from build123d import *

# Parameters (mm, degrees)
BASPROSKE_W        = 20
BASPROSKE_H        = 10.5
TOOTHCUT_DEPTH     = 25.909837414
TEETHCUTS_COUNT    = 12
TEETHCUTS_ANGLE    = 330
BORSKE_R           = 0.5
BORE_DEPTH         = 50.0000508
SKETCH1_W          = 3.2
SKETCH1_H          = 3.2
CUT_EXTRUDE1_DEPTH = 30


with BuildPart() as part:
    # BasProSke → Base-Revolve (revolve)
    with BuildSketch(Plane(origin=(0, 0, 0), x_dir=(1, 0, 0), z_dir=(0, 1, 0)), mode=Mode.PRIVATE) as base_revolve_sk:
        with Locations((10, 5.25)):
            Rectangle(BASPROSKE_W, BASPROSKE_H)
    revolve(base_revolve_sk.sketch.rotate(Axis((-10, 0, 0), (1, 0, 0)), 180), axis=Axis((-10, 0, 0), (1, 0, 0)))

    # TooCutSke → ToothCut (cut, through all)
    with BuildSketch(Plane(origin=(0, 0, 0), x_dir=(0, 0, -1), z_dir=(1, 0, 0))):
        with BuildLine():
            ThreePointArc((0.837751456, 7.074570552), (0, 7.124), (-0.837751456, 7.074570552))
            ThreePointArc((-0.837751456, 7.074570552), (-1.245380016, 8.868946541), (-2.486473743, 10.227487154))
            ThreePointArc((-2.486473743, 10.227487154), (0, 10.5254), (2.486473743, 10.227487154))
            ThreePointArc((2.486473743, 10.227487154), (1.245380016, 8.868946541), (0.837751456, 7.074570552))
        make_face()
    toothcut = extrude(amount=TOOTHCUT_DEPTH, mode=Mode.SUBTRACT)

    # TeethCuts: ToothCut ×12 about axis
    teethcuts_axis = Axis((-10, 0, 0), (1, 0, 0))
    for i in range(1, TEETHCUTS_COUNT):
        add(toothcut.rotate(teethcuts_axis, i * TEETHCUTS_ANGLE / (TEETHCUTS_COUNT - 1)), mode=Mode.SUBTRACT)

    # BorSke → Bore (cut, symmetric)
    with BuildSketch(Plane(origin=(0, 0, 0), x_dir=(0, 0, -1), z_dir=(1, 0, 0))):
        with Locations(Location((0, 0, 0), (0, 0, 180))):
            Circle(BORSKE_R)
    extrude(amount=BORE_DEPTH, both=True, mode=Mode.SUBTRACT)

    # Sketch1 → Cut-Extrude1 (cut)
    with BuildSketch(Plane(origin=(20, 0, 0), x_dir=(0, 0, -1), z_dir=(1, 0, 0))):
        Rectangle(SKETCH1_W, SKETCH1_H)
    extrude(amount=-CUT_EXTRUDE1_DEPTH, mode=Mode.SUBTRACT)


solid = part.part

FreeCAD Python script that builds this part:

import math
import FreeCAD as App
import Part
import Sketcher
from FreeCAD import Vector
Q = App.Units.Quantity


def add_polygon(sketch, points):
    """Adds a closed chain of lines whose ends are joined by coincident constraints."""
    first, n = sketch.GeometryCount, len(points)
    for a, b in zip(points, points[1:] + points[:1]):
        sketch.addGeometry(Part.LineSegment(App.Vector(*a, 0), App.Vector(*b, 0)), False)
    for i in range(n):
        sketch.addConstraint(Sketcher.Constraint("Coincident", first + i, 2, first + (i + 1) % n, 1))

doc = App.newDocument("Part")
params = doc.addObject("Spreadsheet::Sheet", "Params")
for row, (alias, value) in enumerate([
    ("sketch1_width", "20 mm"),
    ("sketch1_height", "10.5 mm"),
    ("revolution_angle", "360 deg"),
    ("sketch2_radius", "3.6 mm"),
    ("sketch3_diameter", "1 mm"),
    ("pocket2_length", "100.000102 mm"),
    ("sketch4_width", "3.2 mm"),
    ("pocket3_length", "30 mm"),
], start=1):
    params.set(f"A{row}", alias)
    params.set(f"B{row}", "=" + value)
    params.setAlias(f"B{row}", alias)

body = doc.addObject("PartDesign::Body", "Body")

# Sketch on XZ plane
sketch1 = body.newObject("Sketcher::SketchObject", "Sketch")
sketch1.AttachmentSupport = (doc.getObject("XZ_Plane"), [""])
sketch1.MapMode = "FlatFace"
add_polygon(sketch1, [(0, -10), (0, 0), (20, 0), (20, -10)])  # lines 0-3
sketch1.addConstraint([
    Sketcher.Constraint("Vertical", 0),
    Sketcher.Constraint("Horizontal", 1),
    Sketcher.Constraint("Vertical", 2),
    Sketcher.Constraint("Horizontal", 3),
    Sketcher.Constraint("Coincident", 0, 2, -1, 1),
    Sketcher.Constraint("DistanceX", 1, 1, 1, 2, Q("20 mm")),
    Sketcher.Constraint("DistanceY", 0, 1, 0, 2, Q("10.5 mm")),
])
sketch1.setExpression("Constraints[9]", "Params.sketch1_width")
sketch1.setExpression("Constraints[10]", "Params.sketch1_height")
revolution = body.newObject("PartDesign::Revolution", "Revolution")
revolution.Profile = sketch1
revolution.ReferenceAxis = (sketch1, ["H_Axis"])
revolution.setExpression("Angle", "Params.revolution_angle")

# Sketch on YZ plane
sketch2 = body.newObject("Sketcher::SketchObject", "Sketch001")
sketch2.AttachmentSupport = (doc.getObject("YZ_Plane"), [""])
sketch2.MapMode = "FlatFace"
sketch2.addGeometry([
    Part.ArcOfCircle(Part.Circle(Vector(0, 0, 0), Vector(0, 0, 1), 7.1), math.radians(-6.75), math.radians(6.75)),
    Part.ArcOfCircle(Part.Circle(Vector(7.2, -4.4, 0), Vector(0, 0, 1), 3.6), math.radians(33), math.radians(92)),
    Part.ArcOfCircle(Part.Circle(Vector(0, 0, 0), Vector(0, 0, 1), 10.5), math.radians(-14), math.radians(14)),
    Part.ArcOfCircle(Part.Circle(Vector(7.2, 4.4, 0), Vector(0, 0, 1), 3.6), math.radians(-92), math.radians(-33)),
], False)
sketch2.addConstraint([
    Sketcher.Constraint("Coincident", 0, 1, 1, 2),
    Sketcher.Constraint("Coincident", 1, 1, 2, 1),
    Sketcher.Constraint("Coincident", 2, 2, 3, 2),
    Sketcher.Constraint("Coincident", 3, 1, 0, 2),
    Sketcher.Constraint("Coincident", 0, 3, -1, 1),
    Sketcher.Constraint("Coincident", 2, 3, -1, 1),
    Sketcher.Constraint("Equal", 1, 3),
    Sketcher.Constraint("Symmetric", 1, 3, 3, 3, -1),
    Sketcher.Constraint("Radius", 1, Q("3.6 mm")),
    Sketcher.Constraint("Radius", 0, Q("7.124 mm")),
    Sketcher.Constraint("Radius", 2, Q("10.5254 mm")),
    Sketcher.Constraint("DistanceX", -1, 1, 1, 3, Q("7.200749 mm")),
    Sketcher.Constraint("DistanceY", 1, 3, -1, 1, Q("4.43554 mm")),
])
sketch2.setExpression("Constraints[8]", "Params.sketch2_radius")
pocket1 = body.newObject("PartDesign::Pocket", "Pocket")
pocket1.Profile = sketch2
pocket1.Type = "ThroughAll"
pocket1.Reversed = True
doc.recompute()

polarpattern = body.newObject("PartDesign::PolarPattern", "PolarPattern")
polarpattern.Originals = [pocket1]
polarpattern.Axis = (doc.getObject("X_Axis"), [""])
polarpattern.Angle = 360
polarpattern.Occurrences = 12
body.Tip = polarpattern

# Sketch on YZ plane
sketch3 = body.newObject("Sketcher::SketchObject", "Sketch002")
sketch3.AttachmentSupport = (doc.getObject("YZ_Plane"), [""])
sketch3.MapMode = "FlatFace"
sketch3.addGeometry(Part.Circle(Vector(0, 0, 0), Vector(0, 0, 1), 0.5), False)
sketch3.addConstraint([
    Sketcher.Constraint("Coincident", 0, 3, -1, 1),
    Sketcher.Constraint("Diameter", 0, Q("1 mm")),
])
sketch3.setExpression("Constraints[1]", "Params.sketch3_diameter")
pocket2 = body.newObject("PartDesign::Pocket", "Pocket001")
pocket2.Profile = sketch3
pocket2.setExpression("Length", "Params.pocket2_length")
pocket2.Midplane = True

# Sketch on YZ plane
sketch4 = body.newObject("Sketcher::SketchObject", "Sketch003")
sketch4.AttachmentSupport = (doc.getObject("YZ_Plane"), [""])
sketch4.MapMode = "FlatFace"
sketch4.AttachmentOffset = App.Placement(Vector(0, 0, 20), App.Rotation())
add_polygon(sketch4, [(1.6, 1.6), (-1.6, 1.6), (-1.6, -1.6), (1.6, -1.6)])  # lines 0-3
sketch4.addConstraint([
    Sketcher.Constraint("Horizontal", 0),
    Sketcher.Constraint("Vertical", 1),
    Sketcher.Constraint("Horizontal", 2),
    Sketcher.Constraint("Vertical", 3),
    Sketcher.Constraint("Symmetric", 0, 2, 2, 2, -1, 1),
    Sketcher.Constraint("Equal", 2, 1),
    Sketcher.Constraint("DistanceX", 0, 2, 0, 1, Q("3.2 mm")),
])
sketch4.setExpression("Constraints[10]", "Params.sketch4_width")
pocket3 = body.newObject("PartDesign::Pocket", "Pocket002")
pocket3.Profile = sketch4
pocket3.setExpression("Length", "Params.pocket3_length")

doc.recompute()
